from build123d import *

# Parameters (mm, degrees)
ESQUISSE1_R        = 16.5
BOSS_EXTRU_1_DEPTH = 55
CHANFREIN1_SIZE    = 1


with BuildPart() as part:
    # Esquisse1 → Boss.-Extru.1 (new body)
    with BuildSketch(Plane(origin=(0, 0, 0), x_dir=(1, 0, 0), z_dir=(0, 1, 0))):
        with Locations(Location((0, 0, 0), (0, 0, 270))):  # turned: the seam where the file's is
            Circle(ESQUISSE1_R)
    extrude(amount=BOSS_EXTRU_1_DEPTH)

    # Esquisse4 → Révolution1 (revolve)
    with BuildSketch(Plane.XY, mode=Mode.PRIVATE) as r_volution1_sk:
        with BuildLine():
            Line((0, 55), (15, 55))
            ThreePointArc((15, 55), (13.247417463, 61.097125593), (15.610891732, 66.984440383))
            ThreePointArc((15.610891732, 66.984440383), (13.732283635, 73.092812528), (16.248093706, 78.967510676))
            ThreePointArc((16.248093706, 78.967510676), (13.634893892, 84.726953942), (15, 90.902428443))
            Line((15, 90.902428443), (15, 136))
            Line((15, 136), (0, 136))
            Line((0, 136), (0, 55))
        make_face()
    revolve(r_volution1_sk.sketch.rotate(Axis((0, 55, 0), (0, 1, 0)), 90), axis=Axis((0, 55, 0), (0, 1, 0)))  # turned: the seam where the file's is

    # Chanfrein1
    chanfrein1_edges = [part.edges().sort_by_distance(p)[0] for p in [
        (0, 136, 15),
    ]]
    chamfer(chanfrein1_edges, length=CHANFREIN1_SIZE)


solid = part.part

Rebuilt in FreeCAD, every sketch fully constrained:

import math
import FreeCAD as App
import Part
import Sketcher
from FreeCAD import Vector
Q = App.Units.Quantity


def edges_at(feature, points):
    """Names of the edges that pass closest to the given points."""
    edges = feature.Shape.Edges
    near = lambda p: min(range(len(edges)), key=lambda i: edges[i].distToShape(Part.Vertex(*p))[0])
    return sorted({f"Edge{near(p) + 1}" for p in points})

doc = App.newDocument("Part")
params = doc.addObject("Spreadsheet::Sheet", "Params")
for row, (alias, value) in enumerate([
    ("sketch1_diameter", "33 mm"),
    ("pad1_length", "55 mm"),
    ("sketch2_radius", "10 mm"),
    ("sketch2_width", "15 mm"),
    ("sketch2_height", "81 mm"),
    ("revolution_angle", "360 deg"),
    ("chamfer_size", "1 mm"),
], start=1):
    params.set(f"A{row}", alias)
    params.set(f"B{row}", "=" + value)
    params.setAlias(f"B{row}", alias)

body = doc.addObject("PartDesign::Body", "Body")

# Sketch on XZ plane
sketch1 = body.newObject("Sketcher::SketchObject", "Sketch")
sketch1.AttachmentSupport = (doc.getObject("XZ_Plane"), [""])
sketch1.MapMode = "FlatFace"
sketch1.addGeometry(Part.Circle(Vector(0, 0, 0), Vector(0, 0, 1), 16), False)
sketch1.addConstraint(Sketcher.Constraint("Coincident", 0, 3, -1, 1))
sketch1.addConstraint(Sketcher.Constraint("Diameter", 0, Q("33 mm")))
sketch1.setExpression("Constraints[1]", "Params.sketch1_diameter")
pad1 = body.newObject("PartDesign::Pad", "Pad")
pad1.Profile = sketch1
pad1.setExpression("Length", "Params.pad1_length")
pad1.Reversed = True

# Sketch on XY plane
sketch2 = body.newObject("Sketcher::SketchObject", "Sketch001")
sketch2.AttachmentSupport = (doc.getObject("XY_Plane"), [""])
sketch2.MapMode = "FlatFace"
sketch2.addGeometry(Part.LineSegment(Vector(0, 55, 0), Vector(15, 55, 0)), False)
sketch2.addGeometry(Part.ArcOfCircle(Part.Circle(Vector(23, 61, 0), Vector(0, 0, 1), 10), math.radians(139), math.radians(215)), False)
sketch2.addGeometry(Part.ArcOfCircle(Part.Circle(Vector(23, 73, 0), Vector(0, 0, 1), 9), math.radians(137), math.radians(217)), False)
sketch2.addGeometry(Part.ArcOfCircle(Part.Circle(Vector(24, 86, 0), Vector(0, 0, 1), 10), math.radians(149), math.radians(223)), False)
sketch2.addGeometry(Part.LineSegment(Vector(15, 91, 0), Vector(15, 136, 0)), False)
sketch2.addGeometry(Part.LineSegment(Vector(15, 136, 0), Vector(0, 136, 0)), False)
sketch2.addGeometry(Part.LineSegment(Vector(0, 136, 0), Vector(0, 55, 0)), False)
sketch2.addConstraint(Sketcher.Constraint("Coincident", 0, 2, 1, 2))
sketch2.addConstraint(Sketcher.Constraint("Coincident", 1, 1, 2, 2))
sketch2.addConstraint(Sketcher.Constraint("Coincident", 2, 1, 3, 2))
sketch2.addConstraint(Sketcher.Constraint("Coincident", 3, 1, 4, 1))
sketch2.addConstraint(Sketcher.Constraint("Coincident", 4, 2, 5, 1))
sketch2.addConstraint(Sketcher.Constraint("Coincident", 5, 2, 6, 1))
sketch2.addConstraint(Sketcher.Constraint("Coincident", 6, 2, 0, 1))
sketch2.addConstraint(Sketcher.Constraint("Horizontal", 0))
sketch2.addConstraint(Sketcher.Constraint("Vertical", 4))
sketch2.addConstraint(Sketcher.Constraint("Horizontal", 5))
sketch2.addConstraint(Sketcher.Constraint("Vertical", 6))
sketch2.addConstraint(Sketcher.Constraint("PointOnObject", 5, 2, -2))
sketch2.addConstraint(Sketcher.Constraint("Vertical", 1, 3, 2, 3))
sketch2.addConstraint(Sketcher.Constraint("Vertical", 0, 2, 3, 1))
sketch2.addConstraint(Sketcher.Constraint("Radius", 3, Q("10 mm")))
sketch2.addConstraint(Sketcher.Constraint("DistanceX", 0, 1, 0, 2, Q("15 mm")))
sketch2.addConstraint(Sketcher.Constraint("DistanceY", 6, 2, 6, 1, Q("81 mm")))
sketch2.addConstraint(Sketcher.Constraint("DistanceX", -1, 1, 1, 3, Q("23 mm")))
sketch2.addConstraint(Sketcher.Constraint("DistanceY", -1, 1, 0, 2, Q("55 mm")))
sketch2.addConstraint(Sketcher.Constraint("DistanceY", 1, 3, 2, 3, Q("12 mm")))
sketch2.addConstraint(Sketcher.Constraint("DistanceY", -1, 1, 1, 3, Q("60.6 mm")))
sketch2.addConstraint(Sketcher.Constraint("Radius", 2, Q("9.28081 mm")))
sketch2.addConstraint(Sketcher.Constraint("DistanceY", 4, 1, 4, 2, Q("45.097572 mm")))
sketch2.addConstraint(Sketcher.Constraint("DistanceX", 1, 1, 2, 1, Q("0.637202 mm")))
sketch2.setExpression("Constraints[14]", "Params.sketch2_radius")
sketch2.setExpression("Constraints[15]", "Params.sketch2_width")
sketch2.setExpression("Constraints[16]", "Params.sketch2_height")
revolution = body.newObject("PartDesign::Revolution", "Revolution")
revolution.Profile = sketch2
revolution.ReferenceAxis = (sketch2, ["V_Axis"])
revolution.setExpression("Angle", "Params.revolution_angle")
doc.recompute()

chamfer = body.newObject("PartDesign::Chamfer", "Chamfer")
chamfer.Base = (revolution, edges_at(revolution, [(0, 136, 15)]))
chamfer.setExpression("Size", "Params.chamfer_size")

doc.recompute()
